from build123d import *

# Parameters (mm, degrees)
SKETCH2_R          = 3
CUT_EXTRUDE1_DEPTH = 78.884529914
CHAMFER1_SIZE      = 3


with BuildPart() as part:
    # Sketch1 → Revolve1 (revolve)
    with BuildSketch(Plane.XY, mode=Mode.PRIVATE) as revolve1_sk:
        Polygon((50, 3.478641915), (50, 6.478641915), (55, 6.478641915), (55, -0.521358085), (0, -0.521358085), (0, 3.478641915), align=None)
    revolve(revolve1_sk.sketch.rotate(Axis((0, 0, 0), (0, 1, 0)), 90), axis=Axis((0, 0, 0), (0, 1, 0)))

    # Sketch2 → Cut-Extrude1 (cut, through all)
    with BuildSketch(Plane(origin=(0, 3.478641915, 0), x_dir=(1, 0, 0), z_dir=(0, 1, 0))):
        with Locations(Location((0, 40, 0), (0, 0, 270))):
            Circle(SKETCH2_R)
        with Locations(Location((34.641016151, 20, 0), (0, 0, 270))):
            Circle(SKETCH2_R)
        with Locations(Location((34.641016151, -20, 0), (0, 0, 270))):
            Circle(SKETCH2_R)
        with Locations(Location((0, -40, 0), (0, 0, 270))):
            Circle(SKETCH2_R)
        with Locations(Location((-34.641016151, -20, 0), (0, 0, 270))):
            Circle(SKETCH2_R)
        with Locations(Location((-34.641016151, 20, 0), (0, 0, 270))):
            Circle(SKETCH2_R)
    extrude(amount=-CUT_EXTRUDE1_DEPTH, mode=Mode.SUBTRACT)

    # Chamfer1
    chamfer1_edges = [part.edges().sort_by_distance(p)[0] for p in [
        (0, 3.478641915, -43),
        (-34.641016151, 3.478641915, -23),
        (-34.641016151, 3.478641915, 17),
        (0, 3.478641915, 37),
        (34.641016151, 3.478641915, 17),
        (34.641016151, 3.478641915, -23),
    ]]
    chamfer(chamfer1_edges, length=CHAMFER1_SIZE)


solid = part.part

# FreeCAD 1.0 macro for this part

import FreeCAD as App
import Part
import Sketcher
from FreeCAD import Vector
Q = App.Units.Quantity


def edges_at(feature, points):
    """Names of the edges that pass closest to the given points."""
    edges = feature.Shape.Edges
    near = lambda p: min(range(len(edges)), key=lambda i: edges[i].distToShape(Part.Vertex(*p))[0])
    return sorted({f"Edge{near(p) + 1}" for p in points})


def add_polygon(sketch, points):
    """Adds a closed chain of lines whose ends are joined by coincident constraints."""
    first, n = sketch.GeometryCount, len(points)
    for a, b in zip(points, points[1:] + points[:1]):
        sketch.addGeometry(Part.LineSegment(App.Vector(*a, 0), App.Vector(*b, 0)), False)
    for i in range(n):
        sketch.addConstraint(Sketcher.Constraint("Coincident", first + i, 2, first + (i + 1) % n, 1))

doc = App.newDocument("Part")
body = doc.addObject("PartDesign::Body", "Body")

# Sketch on XY plane
sketch1 = body.newObject("Sketcher::SketchObject", "Sketch")
sketch1.AttachmentSupport = (doc.getObject("XY_Plane"), [""])
sketch1.MapMode = "FlatFace"
add_polygon(sketch1, [(50, 6.5), (50, 3.5), (0, 3.5), (0, -0.5), (55, -0.5), (55, 6.5)])  # lines 0-5
sketch1.addConstraint(Sketcher.Constraint("Vertical", 0))
sketch1.addConstraint(Sketcher.Constraint("Horizontal", 1))
sketch1.addConstraint(Sketcher.Constraint("Vertical", 2))
sketch1.addConstraint(Sketcher.Constraint("Horizontal", 3))
sketch1.addConstraint(Sketcher.Constraint("Vertical", 4))
sketch1.addConstraint(Sketcher.Constraint("Horizontal", 5))
sketch1.addConstraint(Sketcher.Constraint("PointOnObject", 1, 2, -2))
sketch1.addConstraint(Sketcher.Constraint("DistanceX", 1, 2, 1, 1, Q("50 mm")))
sketch1.addConstraint(Sketcher.Constraint("DistanceX", 3, 1, 3, 2, Q("55 mm")))
sketch1.addConstraint(Sketcher.Constraint("DistanceY", 0, 2, 0, 1, Q("3 mm")))
sketch1.addConstraint(Sketcher.Constraint("DistanceY", 2, 2, 2, 1, Q("4 mm")))
sketch1.addConstraint(Sketcher.Constraint("DistanceY", -1, 1, 0, 2, Q("3.478642 mm")))
revolution = body.newObject("PartDesign::Revolution", "Revolution")
revolution.Profile = sketch1
revolution.ReferenceAxis = (sketch1, ["V_Axis"])
revolution.Angle = 360

# Sketch on XZ plane
sketch2 = body.newObject("Sketcher::SketchObject", "Sketch001")
sketch2.AttachmentSupport = (doc.getObject("XZ_Plane"), [""])
sketch2.MapMode = "FlatFace"
sketch2.AttachmentOffset = App.Placement(Vector(0, 0, -3.478642), App.Rotation())
sketch2.addGeometry(Part.Circle(Vector(0, -40, 0), Vector(0, 0, 1), 3), False)
sketch2.addGeometry(Part.Circle(Vector(34.6, -20, 0), Vector(0, 0, 1), 3), False)
sketch2.addGeometry(Part.Circle(Vector(34.6, 20, 0), Vector(0, 0, 1), 3), False)
sketch2.addGeometry(Part.Circle(Vector(0, 40, 0), Vector(0, 0, 1), 3), False)
sketch2.addGeometry(Part.Circle(Vector(-34.6, 20, 0), Vector(0, 0, 1), 3), False)
sketch2.addGeometry(Part.Circle(Vector(-34.6, -20, 0), Vector(0, 0, 1), 3), False)
sketch2.addConstraint(Sketcher.Constraint("Equal", 0, 1))
sketch2.addConstraint(Sketcher.Constraint("Equal", 1, 2))
sketch2.addConstraint(Sketcher.Constraint("Equal", 2, 3))
sketch2.addConstraint(Sketcher.Constraint("Equal", 3, 4))
sketch2.addConstraint(Sketcher.Constraint("Equal", 4, 5))
sketch2.addConstraint(Sketcher.Constraint("Symmetric", 0, 3, 3, 3, -1, 1))
sketch2.addConstraint(Sketcher.Constraint("Symmetric", 1, 3, 4, 3, -1, 1))
sketch2.addConstraint(Sketcher.Constraint("Symmetric", 2, 3, 5, 3, -1, 1))
sketch2.addConstraint(Sketcher.Constraint("Symmetric", 2, 3, 4, 3, -2))
sketch2.addConstraint(Sketcher.Constraint("PointOnObject", 0, 3, -2))
sketch2.addConstraint(Sketcher.Constraint("Diameter", 0, Q("6 mm")))
sketch2.addConstraint(Sketcher.Constraint("DistanceY", 0, 3, -1, 1, Q("40 mm")))
sketch2.addConstraint(Sketcher.Constraint("DistanceY", 1, 3, -1, 1, Q("20 mm")))
sketch2.addConstraint(Sketcher.Constraint("DistanceX", -1, 1, 1, 3, Q("34.641016 mm")))
pocket1 = body.newObject("PartDesign::Pocket", "Pocket")
pocket1.Profile = sketch2
pocket1.Type = "ThroughAll"
pocket1.Reversed = True
doc.recompute()

chamfer = body.newObject("PartDesign::Chamfer", "Chamfer")
chamfer.Base = (pocket1, edges_at(pocket1, [
    (0, 3.479, -43),
    (-34.641, 3.479, -23),
    (-34.641, 3.479, 17),
    (0, 3.479, 37),
    (34.641, 3.479, 17),
    (34.641, 3.479, -23),
]))
chamfer.Size = 3

doc.recompute()
